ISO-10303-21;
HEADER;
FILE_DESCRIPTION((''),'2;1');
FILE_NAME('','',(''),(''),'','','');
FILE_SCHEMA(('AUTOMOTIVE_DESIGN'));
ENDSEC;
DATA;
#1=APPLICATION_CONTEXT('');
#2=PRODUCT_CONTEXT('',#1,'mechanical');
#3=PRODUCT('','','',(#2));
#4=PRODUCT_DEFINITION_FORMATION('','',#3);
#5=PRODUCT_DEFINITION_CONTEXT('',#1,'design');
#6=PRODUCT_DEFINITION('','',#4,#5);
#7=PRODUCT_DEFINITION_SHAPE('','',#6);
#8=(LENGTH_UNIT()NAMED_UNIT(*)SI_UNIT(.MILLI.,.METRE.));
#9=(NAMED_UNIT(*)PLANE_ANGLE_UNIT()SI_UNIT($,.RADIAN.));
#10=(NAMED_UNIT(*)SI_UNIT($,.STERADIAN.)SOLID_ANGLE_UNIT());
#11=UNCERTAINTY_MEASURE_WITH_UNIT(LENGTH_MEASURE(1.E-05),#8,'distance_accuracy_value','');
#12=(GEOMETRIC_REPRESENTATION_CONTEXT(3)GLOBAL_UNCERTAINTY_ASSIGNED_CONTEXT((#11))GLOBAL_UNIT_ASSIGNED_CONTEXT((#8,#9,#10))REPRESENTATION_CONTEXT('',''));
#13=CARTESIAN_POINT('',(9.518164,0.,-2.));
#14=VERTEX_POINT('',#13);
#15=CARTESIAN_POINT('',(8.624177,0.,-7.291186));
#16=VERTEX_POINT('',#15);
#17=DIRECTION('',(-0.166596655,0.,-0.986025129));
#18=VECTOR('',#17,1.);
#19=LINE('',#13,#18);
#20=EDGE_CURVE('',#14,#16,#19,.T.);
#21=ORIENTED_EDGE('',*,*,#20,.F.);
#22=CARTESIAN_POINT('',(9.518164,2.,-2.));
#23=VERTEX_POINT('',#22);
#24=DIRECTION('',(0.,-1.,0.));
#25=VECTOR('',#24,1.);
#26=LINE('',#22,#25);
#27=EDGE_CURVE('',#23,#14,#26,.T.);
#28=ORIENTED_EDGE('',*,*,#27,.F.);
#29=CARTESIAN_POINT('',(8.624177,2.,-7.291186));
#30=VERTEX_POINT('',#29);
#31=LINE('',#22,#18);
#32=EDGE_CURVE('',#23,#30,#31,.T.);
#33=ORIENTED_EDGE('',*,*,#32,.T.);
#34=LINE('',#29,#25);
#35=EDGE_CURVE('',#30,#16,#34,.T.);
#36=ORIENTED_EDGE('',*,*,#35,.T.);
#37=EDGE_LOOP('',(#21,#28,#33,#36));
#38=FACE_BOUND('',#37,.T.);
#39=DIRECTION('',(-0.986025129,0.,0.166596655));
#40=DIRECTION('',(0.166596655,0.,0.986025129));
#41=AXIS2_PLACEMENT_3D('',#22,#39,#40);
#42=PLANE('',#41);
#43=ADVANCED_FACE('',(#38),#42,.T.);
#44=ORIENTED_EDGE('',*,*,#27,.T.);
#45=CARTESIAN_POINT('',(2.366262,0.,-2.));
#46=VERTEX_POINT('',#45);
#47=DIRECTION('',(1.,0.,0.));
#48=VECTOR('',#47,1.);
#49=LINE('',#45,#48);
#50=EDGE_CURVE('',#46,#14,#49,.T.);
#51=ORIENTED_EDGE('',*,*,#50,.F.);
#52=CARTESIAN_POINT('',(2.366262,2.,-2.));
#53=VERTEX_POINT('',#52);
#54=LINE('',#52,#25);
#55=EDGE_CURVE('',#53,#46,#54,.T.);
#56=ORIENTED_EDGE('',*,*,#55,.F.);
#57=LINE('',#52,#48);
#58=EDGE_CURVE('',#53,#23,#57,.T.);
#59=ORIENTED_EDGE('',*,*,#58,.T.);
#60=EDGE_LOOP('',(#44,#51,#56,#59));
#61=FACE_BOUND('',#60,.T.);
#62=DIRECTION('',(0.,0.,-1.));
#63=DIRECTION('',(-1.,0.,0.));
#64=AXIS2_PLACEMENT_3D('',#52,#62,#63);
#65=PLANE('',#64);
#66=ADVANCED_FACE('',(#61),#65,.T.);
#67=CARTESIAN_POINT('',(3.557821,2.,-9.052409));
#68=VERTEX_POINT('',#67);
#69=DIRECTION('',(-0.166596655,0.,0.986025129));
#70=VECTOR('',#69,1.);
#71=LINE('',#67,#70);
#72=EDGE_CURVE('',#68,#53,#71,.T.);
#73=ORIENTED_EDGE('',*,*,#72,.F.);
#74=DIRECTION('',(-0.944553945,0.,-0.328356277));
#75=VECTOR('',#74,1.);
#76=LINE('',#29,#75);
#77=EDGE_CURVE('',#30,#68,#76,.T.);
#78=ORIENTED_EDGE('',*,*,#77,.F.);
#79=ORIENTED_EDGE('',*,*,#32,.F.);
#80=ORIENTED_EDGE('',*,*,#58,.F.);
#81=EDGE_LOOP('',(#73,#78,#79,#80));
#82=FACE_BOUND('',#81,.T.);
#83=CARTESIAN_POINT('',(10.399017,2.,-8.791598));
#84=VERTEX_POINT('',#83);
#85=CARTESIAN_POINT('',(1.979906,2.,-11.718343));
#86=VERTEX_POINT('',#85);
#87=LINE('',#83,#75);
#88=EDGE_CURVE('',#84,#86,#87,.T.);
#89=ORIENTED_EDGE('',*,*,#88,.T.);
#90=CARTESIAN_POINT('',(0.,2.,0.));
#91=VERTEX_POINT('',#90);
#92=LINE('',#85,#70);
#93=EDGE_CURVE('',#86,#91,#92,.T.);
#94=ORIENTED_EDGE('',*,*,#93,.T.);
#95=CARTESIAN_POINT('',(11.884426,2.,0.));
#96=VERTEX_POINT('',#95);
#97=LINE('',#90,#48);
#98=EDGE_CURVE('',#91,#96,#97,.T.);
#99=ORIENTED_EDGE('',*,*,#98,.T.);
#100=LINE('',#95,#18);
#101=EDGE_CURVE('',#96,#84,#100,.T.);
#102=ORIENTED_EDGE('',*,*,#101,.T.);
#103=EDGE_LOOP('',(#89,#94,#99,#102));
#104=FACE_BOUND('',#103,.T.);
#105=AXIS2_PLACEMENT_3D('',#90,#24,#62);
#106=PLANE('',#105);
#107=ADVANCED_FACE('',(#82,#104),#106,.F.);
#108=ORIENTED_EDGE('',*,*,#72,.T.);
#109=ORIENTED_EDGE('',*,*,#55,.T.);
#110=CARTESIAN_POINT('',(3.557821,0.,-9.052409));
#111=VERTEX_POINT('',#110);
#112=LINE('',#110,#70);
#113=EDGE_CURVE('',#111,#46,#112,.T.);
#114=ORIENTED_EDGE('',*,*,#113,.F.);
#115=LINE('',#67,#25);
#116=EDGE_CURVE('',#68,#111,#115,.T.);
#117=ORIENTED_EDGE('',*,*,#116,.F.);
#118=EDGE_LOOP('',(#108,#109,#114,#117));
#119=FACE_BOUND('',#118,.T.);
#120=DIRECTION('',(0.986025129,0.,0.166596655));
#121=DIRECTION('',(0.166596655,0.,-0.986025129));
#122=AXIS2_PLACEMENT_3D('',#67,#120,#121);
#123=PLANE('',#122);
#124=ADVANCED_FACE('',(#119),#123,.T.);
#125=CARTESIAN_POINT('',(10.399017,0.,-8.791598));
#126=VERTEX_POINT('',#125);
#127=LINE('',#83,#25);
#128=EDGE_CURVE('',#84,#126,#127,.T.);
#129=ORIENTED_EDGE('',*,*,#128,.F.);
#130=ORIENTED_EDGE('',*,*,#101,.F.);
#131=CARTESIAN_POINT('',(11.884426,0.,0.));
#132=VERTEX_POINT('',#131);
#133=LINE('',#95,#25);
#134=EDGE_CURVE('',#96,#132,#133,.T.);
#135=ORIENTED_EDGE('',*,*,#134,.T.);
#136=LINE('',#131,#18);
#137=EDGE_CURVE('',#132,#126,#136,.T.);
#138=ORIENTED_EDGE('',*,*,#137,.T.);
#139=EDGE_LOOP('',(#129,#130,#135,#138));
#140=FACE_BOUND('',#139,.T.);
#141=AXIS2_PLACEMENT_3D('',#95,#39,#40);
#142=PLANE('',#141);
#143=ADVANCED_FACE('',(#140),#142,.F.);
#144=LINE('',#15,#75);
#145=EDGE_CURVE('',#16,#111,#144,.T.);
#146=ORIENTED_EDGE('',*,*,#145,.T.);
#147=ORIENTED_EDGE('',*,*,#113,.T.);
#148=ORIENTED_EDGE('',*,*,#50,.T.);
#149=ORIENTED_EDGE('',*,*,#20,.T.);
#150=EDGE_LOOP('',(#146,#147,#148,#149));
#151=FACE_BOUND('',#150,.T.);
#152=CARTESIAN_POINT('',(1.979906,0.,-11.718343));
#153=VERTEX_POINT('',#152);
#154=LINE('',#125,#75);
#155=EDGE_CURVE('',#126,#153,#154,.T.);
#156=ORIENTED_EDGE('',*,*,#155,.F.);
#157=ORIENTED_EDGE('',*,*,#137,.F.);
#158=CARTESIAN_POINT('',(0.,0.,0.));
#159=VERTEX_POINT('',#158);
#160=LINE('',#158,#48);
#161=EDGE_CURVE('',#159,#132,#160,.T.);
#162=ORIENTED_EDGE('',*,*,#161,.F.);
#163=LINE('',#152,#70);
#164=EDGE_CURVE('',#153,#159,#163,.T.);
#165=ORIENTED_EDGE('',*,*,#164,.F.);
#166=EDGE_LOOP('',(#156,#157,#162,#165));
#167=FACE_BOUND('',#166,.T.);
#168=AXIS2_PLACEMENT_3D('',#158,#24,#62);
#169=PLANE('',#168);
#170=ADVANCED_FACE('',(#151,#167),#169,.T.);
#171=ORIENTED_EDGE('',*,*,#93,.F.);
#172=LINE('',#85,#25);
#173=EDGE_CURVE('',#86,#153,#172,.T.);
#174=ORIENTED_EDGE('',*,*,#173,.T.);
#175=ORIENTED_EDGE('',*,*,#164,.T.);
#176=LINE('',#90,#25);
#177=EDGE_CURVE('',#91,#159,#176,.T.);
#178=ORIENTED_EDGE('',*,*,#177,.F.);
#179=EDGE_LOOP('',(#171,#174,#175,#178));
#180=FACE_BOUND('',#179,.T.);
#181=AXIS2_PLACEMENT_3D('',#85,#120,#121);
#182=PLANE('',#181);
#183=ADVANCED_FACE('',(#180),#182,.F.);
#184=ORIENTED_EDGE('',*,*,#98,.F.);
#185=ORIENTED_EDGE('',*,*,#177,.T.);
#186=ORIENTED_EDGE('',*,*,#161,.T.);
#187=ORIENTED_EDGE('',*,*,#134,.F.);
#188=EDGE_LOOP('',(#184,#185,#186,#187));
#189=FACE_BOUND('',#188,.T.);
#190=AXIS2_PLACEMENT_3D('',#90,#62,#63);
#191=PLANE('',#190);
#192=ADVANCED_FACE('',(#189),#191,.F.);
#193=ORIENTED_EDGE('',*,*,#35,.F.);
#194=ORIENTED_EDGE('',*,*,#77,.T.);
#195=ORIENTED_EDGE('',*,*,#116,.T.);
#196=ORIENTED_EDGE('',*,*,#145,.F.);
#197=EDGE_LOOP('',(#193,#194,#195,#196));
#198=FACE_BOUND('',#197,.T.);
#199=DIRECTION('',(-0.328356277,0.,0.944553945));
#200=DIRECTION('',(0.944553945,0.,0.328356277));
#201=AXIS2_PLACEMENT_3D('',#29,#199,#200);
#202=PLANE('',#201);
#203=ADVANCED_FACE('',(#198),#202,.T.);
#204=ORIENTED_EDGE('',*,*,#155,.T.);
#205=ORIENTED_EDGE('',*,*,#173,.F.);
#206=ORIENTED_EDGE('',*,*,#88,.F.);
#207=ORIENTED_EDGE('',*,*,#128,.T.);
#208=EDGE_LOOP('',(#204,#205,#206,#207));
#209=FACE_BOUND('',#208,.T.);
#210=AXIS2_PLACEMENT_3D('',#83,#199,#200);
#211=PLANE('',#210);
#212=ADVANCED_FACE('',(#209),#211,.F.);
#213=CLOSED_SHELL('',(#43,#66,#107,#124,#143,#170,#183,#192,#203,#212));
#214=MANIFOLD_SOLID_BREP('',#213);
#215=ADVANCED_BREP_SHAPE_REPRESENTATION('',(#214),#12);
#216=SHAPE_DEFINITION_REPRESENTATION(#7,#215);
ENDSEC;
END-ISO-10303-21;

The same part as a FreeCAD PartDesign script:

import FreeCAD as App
import Part
import Sketcher
from FreeCAD import Vector
Q = App.Units.Quantity


def add_polygon(sketch, points):
    """Adds a closed chain of lines whose ends are joined by coincident constraints."""
    first, n = sketch.GeometryCount, len(points)
    for a, b in zip(points, points[1:] + points[:1]):
        sketch.addGeometry(Part.LineSegment(App.Vector(*a, 0), App.Vector(*b, 0)), False)
    for i in range(n):
        sketch.addConstraint(Sketcher.Constraint("Coincident", first + i, 2, first + (i + 1) % n, 1))

doc = App.newDocument("Part")
body = doc.addObject("PartDesign::Body", "Body")

# Sketch on XZ plane
sketch1 = body.newObject("Sketcher::SketchObject", "Sketch")
sketch1.AttachmentSupport = (doc.getObject("XZ_Plane"), [""])
sketch1.MapMode = "FlatFace"
add_polygon(sketch1, [(0, 0), (12, 0), (10, -9), (2, -12)])  # lines 0-3
add_polygon(sketch1, [(2, -2), (4, -9), (9, -7), (10, -2)])  # lines 4-7
sketch1.addConstraint([
    Sketcher.Constraint("Horizontal", 0),
    Sketcher.Constraint("Horizontal", 7),
    Sketcher.Constraint("Coincident", 3, 2, -1, 1),
    Sketcher.Constraint("Parallel", 3, 4),
    Sketcher.Constraint("Parallel", 2, 5),
    Sketcher.Constraint("Parallel", 1, 6),
    Sketcher.Constraint("DistanceY", 6, 2, -1, 1, Q("2 mm")),
    Sketcher.Constraint("Angle", 1, Q("-99.59 deg")),
    Sketcher.Constraint("Angle", 3, Q("99.59 deg")),
    Sketcher.Constraint("Distance", 1, Q("8.916201 mm")),
    Sketcher.Constraint("Distance", 2, Q("8.91332 mm")),
    Sketcher.Constraint("DistanceX", 0, 1, 0, 2, Q("11.884426 mm")),
    Sketcher.Constraint("DistanceX", 7, 2, 7, 1, Q("7.151903 mm")),
    Sketcher.Constraint("DistanceX", -1, 1, 4, 2, Q("3.557821 mm")),
    Sketcher.Constraint("DistanceY", 4, 2, -1, 1, Q("9.052409 mm")),
])
pad1 = body.newObject("PartDesign::Pad", "Pad")
pad1.Profile = sketch1
pad1.Length = 2
pad1.Reversed = True

doc.recompute()
